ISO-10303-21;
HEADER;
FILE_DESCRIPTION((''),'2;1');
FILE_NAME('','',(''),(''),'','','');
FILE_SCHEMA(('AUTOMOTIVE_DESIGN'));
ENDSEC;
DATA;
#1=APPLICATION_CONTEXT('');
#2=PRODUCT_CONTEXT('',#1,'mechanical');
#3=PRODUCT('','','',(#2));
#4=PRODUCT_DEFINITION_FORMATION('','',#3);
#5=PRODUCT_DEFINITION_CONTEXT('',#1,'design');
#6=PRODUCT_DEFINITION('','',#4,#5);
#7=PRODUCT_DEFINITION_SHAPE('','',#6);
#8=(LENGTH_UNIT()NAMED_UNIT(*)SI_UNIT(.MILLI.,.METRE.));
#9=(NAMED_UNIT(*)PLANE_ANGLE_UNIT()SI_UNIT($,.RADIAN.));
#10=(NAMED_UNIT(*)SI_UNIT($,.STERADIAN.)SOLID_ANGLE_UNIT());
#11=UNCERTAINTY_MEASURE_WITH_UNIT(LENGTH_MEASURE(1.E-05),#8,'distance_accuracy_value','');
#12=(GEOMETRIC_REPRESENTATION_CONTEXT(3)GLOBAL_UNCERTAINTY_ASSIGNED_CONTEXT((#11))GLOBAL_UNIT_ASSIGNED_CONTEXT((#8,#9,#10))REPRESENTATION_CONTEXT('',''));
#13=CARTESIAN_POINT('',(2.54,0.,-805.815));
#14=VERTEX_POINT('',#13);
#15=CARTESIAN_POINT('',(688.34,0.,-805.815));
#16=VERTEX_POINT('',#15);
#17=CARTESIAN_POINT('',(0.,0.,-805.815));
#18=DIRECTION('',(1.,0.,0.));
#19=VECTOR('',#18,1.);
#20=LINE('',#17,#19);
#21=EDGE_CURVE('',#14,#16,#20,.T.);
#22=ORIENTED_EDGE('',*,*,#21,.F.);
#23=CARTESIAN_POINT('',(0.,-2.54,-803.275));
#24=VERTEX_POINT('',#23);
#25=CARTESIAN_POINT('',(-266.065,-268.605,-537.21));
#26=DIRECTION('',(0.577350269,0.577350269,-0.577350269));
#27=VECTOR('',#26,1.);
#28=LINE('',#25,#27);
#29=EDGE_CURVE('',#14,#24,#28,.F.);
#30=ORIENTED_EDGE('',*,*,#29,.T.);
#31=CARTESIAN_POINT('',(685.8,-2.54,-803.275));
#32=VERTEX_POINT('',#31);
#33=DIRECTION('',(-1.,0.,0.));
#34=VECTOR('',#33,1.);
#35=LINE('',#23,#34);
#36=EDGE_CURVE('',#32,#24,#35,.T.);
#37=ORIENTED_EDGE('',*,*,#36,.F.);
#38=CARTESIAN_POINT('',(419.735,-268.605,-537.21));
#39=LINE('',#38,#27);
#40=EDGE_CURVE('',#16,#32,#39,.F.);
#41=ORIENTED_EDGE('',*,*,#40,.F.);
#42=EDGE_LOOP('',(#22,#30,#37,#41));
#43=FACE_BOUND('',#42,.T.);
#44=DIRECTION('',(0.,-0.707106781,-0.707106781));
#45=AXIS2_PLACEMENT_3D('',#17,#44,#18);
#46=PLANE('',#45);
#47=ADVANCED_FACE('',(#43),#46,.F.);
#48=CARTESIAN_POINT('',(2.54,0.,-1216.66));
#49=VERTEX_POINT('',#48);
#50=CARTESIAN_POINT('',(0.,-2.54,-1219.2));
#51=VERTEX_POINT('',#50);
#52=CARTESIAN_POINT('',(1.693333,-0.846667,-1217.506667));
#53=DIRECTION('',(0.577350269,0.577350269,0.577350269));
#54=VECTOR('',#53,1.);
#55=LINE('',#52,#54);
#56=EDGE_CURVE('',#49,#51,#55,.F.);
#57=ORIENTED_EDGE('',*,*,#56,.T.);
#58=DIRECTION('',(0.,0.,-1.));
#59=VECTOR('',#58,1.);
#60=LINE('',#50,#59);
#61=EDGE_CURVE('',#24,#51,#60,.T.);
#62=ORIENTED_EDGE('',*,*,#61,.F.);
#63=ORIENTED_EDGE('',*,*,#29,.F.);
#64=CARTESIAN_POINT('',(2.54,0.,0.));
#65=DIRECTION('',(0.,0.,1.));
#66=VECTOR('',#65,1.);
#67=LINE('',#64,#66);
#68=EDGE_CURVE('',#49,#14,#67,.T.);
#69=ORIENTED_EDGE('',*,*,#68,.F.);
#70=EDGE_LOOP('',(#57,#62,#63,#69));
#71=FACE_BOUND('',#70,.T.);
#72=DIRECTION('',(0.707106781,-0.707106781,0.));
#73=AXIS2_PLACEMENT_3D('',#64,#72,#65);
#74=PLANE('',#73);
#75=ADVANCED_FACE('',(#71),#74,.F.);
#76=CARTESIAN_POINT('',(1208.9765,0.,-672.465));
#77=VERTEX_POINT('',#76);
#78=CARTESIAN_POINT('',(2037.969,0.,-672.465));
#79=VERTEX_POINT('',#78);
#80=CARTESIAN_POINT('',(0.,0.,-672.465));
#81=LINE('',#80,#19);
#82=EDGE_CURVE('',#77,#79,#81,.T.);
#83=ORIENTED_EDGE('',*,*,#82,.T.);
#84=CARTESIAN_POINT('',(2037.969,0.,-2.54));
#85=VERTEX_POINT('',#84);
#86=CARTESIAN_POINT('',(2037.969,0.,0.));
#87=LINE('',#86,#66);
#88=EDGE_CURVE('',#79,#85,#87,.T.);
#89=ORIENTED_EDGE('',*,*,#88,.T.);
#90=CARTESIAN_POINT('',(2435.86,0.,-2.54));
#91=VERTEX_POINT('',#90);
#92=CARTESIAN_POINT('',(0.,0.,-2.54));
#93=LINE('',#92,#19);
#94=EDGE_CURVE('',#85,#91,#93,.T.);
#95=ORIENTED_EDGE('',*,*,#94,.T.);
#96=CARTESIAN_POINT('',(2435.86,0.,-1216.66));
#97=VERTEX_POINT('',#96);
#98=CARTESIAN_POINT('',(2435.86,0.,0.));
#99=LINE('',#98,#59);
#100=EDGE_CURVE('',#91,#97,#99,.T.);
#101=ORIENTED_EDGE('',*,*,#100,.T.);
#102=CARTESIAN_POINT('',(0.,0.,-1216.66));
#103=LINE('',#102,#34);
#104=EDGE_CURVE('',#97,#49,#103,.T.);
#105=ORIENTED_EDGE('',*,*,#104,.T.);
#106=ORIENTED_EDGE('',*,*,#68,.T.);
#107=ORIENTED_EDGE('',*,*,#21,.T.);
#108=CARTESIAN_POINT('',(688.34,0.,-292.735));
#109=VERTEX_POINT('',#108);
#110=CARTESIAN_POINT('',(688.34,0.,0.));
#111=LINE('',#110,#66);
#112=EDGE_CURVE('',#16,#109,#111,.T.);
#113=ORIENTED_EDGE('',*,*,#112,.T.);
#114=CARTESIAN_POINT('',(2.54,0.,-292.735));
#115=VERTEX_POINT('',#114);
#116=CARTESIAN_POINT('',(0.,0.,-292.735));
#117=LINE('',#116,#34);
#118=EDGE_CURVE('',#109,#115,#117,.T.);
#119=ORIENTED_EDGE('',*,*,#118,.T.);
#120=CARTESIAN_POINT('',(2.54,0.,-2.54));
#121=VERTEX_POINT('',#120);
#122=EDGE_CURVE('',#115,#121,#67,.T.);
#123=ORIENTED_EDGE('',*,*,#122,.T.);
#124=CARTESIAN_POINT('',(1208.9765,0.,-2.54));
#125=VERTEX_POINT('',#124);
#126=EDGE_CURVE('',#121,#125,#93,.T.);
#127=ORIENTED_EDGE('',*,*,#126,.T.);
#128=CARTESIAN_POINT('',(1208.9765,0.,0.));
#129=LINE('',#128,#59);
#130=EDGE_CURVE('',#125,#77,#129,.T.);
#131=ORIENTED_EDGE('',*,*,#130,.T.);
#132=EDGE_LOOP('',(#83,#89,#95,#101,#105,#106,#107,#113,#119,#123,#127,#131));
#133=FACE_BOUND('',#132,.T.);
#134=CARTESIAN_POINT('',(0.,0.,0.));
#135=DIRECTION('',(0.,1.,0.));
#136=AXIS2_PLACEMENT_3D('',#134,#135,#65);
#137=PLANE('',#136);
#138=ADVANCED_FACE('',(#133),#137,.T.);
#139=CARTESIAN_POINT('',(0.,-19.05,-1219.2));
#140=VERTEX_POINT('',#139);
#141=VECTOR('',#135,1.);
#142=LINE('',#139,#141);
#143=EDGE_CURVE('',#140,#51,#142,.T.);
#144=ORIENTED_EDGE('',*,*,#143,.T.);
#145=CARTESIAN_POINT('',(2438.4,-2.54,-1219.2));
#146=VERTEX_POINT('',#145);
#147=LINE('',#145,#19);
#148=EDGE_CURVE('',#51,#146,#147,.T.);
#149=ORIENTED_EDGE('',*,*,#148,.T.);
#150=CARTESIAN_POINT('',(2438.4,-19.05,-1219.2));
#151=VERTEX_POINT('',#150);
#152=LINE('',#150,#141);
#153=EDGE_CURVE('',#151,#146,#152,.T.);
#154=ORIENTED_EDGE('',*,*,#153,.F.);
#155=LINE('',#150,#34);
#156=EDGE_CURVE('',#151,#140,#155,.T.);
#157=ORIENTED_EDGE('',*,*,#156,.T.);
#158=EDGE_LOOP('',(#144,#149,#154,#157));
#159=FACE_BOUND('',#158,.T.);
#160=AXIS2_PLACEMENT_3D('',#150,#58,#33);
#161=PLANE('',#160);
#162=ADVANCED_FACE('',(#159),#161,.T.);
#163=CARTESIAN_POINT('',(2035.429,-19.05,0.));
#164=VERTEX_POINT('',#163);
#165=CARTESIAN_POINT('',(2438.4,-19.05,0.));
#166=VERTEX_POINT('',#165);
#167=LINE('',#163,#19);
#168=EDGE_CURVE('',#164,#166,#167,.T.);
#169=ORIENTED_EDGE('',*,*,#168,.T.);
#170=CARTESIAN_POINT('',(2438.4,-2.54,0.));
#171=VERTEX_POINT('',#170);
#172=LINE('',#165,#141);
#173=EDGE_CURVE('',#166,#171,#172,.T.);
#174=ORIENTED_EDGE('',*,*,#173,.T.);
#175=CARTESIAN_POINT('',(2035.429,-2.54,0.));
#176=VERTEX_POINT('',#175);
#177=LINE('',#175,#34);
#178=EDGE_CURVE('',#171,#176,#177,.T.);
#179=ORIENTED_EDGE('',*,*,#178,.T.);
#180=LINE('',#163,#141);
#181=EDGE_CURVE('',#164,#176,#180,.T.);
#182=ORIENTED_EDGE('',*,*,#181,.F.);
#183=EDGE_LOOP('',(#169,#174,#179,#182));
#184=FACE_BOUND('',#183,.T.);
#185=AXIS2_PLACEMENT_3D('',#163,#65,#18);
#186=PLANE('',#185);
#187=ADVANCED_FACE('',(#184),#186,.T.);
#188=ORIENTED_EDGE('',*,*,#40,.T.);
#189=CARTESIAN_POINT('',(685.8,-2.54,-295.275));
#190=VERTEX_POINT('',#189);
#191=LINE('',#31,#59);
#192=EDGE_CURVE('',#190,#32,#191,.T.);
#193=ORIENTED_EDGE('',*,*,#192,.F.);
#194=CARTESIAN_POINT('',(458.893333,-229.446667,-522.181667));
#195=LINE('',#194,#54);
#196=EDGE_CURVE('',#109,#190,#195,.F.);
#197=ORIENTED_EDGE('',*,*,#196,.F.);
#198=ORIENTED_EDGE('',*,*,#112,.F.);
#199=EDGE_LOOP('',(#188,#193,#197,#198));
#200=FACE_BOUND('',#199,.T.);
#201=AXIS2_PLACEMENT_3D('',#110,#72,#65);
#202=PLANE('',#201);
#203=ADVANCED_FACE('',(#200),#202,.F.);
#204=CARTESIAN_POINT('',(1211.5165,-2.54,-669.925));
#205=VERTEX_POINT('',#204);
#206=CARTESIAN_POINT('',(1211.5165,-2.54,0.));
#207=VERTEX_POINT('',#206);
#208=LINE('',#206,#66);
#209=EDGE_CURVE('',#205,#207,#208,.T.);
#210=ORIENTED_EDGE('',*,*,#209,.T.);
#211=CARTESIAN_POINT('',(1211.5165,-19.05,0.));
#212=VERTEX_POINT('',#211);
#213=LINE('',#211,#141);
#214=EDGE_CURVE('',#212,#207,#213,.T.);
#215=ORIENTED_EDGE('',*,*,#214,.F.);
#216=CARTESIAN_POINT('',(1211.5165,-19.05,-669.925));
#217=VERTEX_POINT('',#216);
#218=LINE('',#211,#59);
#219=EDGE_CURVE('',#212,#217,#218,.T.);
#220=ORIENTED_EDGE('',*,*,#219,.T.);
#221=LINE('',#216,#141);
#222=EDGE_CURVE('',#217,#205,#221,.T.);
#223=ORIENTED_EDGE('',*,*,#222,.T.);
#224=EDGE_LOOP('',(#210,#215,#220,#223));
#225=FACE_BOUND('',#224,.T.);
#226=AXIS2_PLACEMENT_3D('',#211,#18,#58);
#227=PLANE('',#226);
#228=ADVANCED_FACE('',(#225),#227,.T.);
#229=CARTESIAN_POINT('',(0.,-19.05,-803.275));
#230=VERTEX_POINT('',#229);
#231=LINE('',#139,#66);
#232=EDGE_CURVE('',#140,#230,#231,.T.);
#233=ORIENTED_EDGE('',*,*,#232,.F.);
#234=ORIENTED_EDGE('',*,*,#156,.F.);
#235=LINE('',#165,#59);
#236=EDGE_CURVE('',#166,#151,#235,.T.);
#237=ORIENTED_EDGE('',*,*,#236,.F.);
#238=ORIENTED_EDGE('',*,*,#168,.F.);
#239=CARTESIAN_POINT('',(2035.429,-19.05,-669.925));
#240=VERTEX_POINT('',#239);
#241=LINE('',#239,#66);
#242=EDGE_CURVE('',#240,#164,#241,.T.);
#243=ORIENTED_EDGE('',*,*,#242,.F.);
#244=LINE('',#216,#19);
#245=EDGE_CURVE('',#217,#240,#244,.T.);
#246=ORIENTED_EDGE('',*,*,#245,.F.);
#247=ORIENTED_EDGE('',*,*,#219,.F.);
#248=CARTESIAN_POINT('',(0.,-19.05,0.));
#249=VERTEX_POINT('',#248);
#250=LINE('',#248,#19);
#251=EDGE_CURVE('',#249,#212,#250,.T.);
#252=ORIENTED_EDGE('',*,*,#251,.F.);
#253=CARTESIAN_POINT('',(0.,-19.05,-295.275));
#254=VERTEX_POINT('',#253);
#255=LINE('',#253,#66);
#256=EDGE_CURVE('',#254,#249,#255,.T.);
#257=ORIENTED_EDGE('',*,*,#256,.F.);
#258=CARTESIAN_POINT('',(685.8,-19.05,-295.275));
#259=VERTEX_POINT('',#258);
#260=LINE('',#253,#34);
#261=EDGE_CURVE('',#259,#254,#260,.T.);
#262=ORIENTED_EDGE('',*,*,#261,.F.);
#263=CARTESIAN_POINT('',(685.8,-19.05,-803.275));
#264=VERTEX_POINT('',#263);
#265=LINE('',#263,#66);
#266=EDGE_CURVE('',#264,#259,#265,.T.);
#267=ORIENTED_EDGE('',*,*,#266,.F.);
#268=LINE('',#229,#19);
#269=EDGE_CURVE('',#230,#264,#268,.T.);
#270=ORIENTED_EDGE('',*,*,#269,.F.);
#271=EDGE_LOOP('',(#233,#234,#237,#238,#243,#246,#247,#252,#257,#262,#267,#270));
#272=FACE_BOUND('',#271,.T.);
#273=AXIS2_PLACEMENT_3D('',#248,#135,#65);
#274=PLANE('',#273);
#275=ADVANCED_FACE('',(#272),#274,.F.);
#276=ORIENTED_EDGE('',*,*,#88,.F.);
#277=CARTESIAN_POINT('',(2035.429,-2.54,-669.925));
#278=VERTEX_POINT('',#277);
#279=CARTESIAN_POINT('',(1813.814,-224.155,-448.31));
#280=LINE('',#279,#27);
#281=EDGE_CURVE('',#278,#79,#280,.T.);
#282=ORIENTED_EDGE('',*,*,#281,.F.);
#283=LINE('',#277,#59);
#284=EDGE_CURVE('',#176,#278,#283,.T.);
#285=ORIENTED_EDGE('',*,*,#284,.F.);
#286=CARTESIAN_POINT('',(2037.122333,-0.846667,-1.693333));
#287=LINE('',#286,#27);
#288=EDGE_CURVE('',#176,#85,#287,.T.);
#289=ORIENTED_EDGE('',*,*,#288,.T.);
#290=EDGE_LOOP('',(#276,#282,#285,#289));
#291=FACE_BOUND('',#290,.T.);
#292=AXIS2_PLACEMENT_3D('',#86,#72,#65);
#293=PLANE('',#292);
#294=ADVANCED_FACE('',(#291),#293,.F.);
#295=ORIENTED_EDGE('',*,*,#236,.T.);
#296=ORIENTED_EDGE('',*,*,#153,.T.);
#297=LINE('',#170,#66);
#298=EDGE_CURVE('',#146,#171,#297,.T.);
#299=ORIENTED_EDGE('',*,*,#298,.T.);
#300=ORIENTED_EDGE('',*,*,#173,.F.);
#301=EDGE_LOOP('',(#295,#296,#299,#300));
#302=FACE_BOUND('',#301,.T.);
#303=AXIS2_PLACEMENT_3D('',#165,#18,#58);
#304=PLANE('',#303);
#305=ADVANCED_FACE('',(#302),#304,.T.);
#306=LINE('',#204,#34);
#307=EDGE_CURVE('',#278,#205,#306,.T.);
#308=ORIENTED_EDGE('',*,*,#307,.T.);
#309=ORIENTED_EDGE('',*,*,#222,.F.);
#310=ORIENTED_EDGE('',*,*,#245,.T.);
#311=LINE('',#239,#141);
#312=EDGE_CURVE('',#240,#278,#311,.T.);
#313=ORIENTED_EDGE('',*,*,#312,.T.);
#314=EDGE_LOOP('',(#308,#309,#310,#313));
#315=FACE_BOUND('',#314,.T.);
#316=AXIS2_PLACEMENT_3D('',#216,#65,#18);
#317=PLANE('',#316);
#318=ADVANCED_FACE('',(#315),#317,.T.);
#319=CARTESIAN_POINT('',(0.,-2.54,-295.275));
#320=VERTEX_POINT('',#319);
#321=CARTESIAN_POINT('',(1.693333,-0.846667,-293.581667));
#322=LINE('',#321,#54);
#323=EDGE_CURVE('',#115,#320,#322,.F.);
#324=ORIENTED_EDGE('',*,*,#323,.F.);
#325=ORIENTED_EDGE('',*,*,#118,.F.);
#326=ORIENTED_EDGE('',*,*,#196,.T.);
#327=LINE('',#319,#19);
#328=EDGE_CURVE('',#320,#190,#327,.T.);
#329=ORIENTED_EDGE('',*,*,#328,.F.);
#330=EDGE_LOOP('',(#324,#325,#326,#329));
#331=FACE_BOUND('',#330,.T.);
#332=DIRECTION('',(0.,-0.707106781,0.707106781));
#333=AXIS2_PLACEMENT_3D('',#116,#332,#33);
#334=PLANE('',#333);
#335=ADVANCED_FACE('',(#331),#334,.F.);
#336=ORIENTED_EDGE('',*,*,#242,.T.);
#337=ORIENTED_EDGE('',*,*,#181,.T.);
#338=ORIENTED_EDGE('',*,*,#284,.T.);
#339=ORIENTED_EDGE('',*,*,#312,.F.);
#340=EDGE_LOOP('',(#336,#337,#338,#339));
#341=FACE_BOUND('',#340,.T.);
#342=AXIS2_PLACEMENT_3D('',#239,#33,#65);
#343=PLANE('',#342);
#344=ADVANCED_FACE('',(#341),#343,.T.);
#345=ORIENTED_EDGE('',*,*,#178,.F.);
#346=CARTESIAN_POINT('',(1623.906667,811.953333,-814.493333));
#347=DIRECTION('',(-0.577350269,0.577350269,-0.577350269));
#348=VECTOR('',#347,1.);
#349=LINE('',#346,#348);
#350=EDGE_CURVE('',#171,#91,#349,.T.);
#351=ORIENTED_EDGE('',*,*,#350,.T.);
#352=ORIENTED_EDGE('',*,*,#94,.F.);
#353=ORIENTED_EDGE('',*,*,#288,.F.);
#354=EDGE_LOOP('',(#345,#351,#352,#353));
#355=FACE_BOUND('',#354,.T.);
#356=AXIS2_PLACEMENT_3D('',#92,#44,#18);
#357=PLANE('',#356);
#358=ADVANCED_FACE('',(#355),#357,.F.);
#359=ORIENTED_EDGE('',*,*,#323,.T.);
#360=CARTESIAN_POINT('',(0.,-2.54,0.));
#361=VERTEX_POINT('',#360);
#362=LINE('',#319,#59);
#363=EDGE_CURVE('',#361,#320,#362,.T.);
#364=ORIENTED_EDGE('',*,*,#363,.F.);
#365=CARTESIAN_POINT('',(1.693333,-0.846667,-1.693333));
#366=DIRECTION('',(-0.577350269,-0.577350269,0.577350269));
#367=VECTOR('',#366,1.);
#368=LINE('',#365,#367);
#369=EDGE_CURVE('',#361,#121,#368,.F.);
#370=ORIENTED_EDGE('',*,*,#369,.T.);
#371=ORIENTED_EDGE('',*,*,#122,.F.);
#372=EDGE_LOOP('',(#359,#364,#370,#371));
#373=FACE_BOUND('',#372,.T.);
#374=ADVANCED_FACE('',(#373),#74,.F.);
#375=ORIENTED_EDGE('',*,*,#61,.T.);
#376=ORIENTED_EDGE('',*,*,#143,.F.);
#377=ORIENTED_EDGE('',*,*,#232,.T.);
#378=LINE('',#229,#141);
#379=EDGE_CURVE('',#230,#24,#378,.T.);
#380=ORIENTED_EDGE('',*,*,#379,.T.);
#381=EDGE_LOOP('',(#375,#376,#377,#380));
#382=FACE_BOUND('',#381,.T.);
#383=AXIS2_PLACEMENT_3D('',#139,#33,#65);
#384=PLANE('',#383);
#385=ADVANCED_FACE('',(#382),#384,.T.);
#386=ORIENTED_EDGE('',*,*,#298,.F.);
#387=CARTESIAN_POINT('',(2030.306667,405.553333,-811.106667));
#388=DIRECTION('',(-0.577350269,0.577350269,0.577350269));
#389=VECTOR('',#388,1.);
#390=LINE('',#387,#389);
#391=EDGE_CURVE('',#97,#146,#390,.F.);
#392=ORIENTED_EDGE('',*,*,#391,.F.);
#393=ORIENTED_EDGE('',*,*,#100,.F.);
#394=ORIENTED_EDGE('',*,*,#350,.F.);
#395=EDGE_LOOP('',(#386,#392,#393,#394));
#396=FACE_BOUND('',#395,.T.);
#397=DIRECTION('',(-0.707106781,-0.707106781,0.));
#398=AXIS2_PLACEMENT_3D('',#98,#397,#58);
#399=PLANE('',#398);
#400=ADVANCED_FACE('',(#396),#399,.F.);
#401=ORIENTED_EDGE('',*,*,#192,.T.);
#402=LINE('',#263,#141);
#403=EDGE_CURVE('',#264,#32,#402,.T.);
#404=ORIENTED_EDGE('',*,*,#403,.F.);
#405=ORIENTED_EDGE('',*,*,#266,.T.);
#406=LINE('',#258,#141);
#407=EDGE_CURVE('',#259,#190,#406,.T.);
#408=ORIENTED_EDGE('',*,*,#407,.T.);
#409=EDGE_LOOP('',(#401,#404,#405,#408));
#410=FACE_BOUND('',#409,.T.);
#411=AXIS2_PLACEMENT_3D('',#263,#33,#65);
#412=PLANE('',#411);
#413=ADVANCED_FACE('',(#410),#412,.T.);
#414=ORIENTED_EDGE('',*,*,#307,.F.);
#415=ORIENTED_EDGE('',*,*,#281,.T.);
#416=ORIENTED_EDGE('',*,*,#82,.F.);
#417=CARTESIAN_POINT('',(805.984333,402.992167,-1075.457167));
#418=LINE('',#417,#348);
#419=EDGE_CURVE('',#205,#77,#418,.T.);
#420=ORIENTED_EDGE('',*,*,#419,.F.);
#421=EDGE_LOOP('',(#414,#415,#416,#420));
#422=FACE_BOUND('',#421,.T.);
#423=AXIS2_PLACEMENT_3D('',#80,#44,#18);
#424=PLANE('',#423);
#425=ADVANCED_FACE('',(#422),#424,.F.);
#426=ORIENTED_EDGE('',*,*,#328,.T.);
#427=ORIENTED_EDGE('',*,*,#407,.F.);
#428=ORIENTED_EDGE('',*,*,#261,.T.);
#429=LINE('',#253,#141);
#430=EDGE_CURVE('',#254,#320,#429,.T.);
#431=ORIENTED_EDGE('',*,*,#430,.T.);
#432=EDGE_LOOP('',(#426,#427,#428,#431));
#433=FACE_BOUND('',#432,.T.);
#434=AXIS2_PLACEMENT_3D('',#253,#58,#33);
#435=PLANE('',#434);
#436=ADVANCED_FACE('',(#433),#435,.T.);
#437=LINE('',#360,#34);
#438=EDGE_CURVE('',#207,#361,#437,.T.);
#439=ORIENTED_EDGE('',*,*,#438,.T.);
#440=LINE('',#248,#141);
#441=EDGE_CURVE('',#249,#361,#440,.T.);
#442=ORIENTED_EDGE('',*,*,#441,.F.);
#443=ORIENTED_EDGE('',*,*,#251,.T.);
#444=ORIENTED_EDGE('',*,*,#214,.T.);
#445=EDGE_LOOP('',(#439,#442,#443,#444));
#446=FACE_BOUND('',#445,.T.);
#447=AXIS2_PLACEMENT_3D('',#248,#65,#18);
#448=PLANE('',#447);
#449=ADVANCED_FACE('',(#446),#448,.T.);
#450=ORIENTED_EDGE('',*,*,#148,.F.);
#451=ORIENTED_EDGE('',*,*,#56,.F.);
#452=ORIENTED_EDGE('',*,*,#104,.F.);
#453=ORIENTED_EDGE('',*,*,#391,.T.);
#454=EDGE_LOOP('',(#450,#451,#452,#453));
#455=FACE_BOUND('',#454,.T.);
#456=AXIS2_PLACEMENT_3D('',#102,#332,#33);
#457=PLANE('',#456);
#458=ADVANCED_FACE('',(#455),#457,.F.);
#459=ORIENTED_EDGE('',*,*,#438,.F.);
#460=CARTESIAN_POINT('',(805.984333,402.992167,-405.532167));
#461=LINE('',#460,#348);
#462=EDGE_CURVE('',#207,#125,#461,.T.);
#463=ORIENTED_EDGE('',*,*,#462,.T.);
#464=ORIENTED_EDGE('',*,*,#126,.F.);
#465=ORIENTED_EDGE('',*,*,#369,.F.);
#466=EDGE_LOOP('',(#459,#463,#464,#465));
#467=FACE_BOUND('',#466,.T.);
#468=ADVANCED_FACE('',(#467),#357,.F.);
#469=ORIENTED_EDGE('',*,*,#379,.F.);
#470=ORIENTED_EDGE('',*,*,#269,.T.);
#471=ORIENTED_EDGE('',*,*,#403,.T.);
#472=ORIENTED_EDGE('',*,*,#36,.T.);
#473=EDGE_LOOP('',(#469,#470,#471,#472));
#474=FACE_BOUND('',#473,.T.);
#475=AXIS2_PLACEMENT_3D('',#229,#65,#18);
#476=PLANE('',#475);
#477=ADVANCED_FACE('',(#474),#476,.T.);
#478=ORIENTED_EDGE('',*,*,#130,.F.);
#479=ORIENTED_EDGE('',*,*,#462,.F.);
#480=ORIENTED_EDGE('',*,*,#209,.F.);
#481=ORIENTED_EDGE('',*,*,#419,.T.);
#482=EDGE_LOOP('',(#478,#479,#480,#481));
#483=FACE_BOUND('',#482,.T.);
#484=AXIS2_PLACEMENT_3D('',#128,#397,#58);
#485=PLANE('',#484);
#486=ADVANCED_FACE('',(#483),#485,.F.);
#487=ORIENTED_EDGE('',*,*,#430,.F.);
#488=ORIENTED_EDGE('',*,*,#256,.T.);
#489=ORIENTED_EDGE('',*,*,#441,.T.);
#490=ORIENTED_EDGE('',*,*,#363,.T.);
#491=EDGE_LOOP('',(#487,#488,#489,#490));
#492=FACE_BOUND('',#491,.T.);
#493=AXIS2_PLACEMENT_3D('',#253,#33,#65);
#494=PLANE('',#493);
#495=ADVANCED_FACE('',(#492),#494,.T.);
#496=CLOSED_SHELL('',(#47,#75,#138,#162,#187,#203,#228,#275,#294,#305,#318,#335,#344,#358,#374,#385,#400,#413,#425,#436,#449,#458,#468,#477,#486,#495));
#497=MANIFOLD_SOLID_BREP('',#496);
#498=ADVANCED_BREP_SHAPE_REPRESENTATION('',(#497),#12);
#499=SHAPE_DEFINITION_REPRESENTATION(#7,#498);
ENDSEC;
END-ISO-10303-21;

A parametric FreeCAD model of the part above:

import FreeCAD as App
import Part
import Sketcher

V = App.Vector
Q = App.Units.Quantity


def edges_at(feature, points):
    """Names of the edges that pass closest to the given points."""
    edges = feature.Shape.Edges
    near = lambda p: min(range(len(edges)), key=lambda i: edges[i].distToShape(Part.Vertex(*p))[0])
    return sorted({f"Edge{near(p) + 1}" for p in points})

doc = App.newDocument("Part")
body = doc.addObject("PartDesign::Body", "Body")

# Sketch on XZ plane
sketch1 = body.newObject("Sketcher::SketchObject", "Sketch")
sketch1.AttachmentSupport = (doc.getObject("XZ_Plane"), [""])
sketch1.MapMode = "FlatFace"
sketch1.addGeometry([
    Part.LineSegment(V(1211.5165, 0, 0), V(1211.5165, -669.925, 0)),  # 0
    Part.LineSegment(V(1211.5165, -669.925, 0), V(2035.429, -669.925, 0)),  # 1
    Part.LineSegment(V(2035.429, -669.925, 0), V(2035.429, 0, 0)),  # 2
    Part.LineSegment(V(2035.429, 0, 0), V(2438.4, 0, 0)),  # 3
    Part.LineSegment(V(2438.4, 0, 0), V(2438.4, -1219.2, 0)),  # 4
    Part.LineSegment(V(2438.4, -1219.2, 0), V(0, -1219.2, 0)),  # 5
    Part.LineSegment(V(0, -1219.2, 0), V(0, -803.275, 0)),  # 6
    Part.LineSegment(V(0, -803.275, 0), V(685.8, -803.275, 0)),  # 7
    Part.LineSegment(V(685.8, -803.275, 0), V(685.8, -295.275, 0)),  # 8
    Part.LineSegment(V(685.8, -295.275, 0), V(0, -295.275, 0)),  # 9
    Part.LineSegment(V(0, -295.275, 0), V(0, 0, 0)),  # 10
    Part.LineSegment(V(0, 0, 0), V(1211.5165, 0, 0)),  # 11
], False)
sketch1.addConstraint([
    Sketcher.Constraint("Coincident", 0, 2, 1, 1),
    Sketcher.Constraint("Coincident", 1, 2, 2, 1),
    Sketcher.Constraint("Coincident", 2, 2, 3, 1),
    Sketcher.Constraint("Coincident", 3, 2, 4, 1),
    Sketcher.Constraint("Coincident", 4, 2, 5, 1),
    Sketcher.Constraint("Coincident", 5, 2, 6, 1),
    Sketcher.Constraint("Coincident", 6, 2, 7, 1),
    Sketcher.Constraint("Coincident", 7, 2, 8, 1),
    Sketcher.Constraint("Coincident", 8, 2, 9, 1),
    Sketcher.Constraint("Coincident", 9, 2, 10, 1),
    Sketcher.Constraint("Coincident", 10, 2, 11, 1),
    Sketcher.Constraint("Coincident", 11, 2, 0, 1),
    Sketcher.Constraint("Vertical", 0),
    Sketcher.Constraint("Horizontal", 1),
    Sketcher.Constraint("Vertical", 2),
    Sketcher.Constraint("Horizontal", 3),
    Sketcher.Constraint("Vertical", 4),
    Sketcher.Constraint("Horizontal", 5),
    Sketcher.Constraint("Vertical", 6),
    Sketcher.Constraint("Horizontal", 7),
    Sketcher.Constraint("Vertical", 8),
    Sketcher.Constraint("Horizontal", 9),
    Sketcher.Constraint("Vertical", 10),
    Sketcher.Constraint("Horizontal", 11),
    Sketcher.Constraint("Coincident", 10, 2, -1, 1),
    Sketcher.Constraint("PointOnObject", 2, 2, -1),
    Sketcher.Constraint("PointOnObject", 5, 2, -2),
    Sketcher.Constraint("DistanceX", 5, 2, 5, 1, Q("96 in")),
    Sketcher.Constraint("DistanceX", 7, 1, 7, 2, Q("27 in")),
    Sketcher.Constraint("DistanceY", 4, 2, 4, 1, Q("48 in")),
    Sketcher.Constraint("DistanceY", 8, 1, 8, 2, Q("20 in")),
    Sketcher.Constraint("DistanceX", 1, 1, 1, 2, Q("32.4375 in")),
    Sketcher.Constraint("DistanceX", 3, 1, 3, 2, Q("15.865 in")),
    Sketcher.Constraint("DistanceY", 0, 2, 0, 1, Q("26.375 in")),
    Sketcher.Constraint("DistanceY", 6, 1, 6, 2, Q("16.375 in")),
])
pad1 = body.newObject("PartDesign::Pad", "Pad")
pad1.Profile = sketch1
pad1.Length = Q("0.75 in")
doc.recompute()

chamfer = body.newObject("PartDesign::Chamfer", "Chamfer")
chamfer.Base = (pad1, edges_at(pad1, [
    (0, 0, -147.637),
    (342.9, 0, -295.275),
    (685.8, 0, -549.275),
    (342.9, 0, -803.275),
    (0, 0, -1011.237),
    (1219.2, 0, -1219.2),
    (2438.4, 0, -609.6),
    (2236.914, 0, 0),
    (2035.429, 0, -334.962),
    (1623.473, 0, -669.925),
    (1211.516, 0, -334.962),
    (605.758, 0, 0),
]))
chamfer.Size = Q("0.1 in")

doc.recompute()
